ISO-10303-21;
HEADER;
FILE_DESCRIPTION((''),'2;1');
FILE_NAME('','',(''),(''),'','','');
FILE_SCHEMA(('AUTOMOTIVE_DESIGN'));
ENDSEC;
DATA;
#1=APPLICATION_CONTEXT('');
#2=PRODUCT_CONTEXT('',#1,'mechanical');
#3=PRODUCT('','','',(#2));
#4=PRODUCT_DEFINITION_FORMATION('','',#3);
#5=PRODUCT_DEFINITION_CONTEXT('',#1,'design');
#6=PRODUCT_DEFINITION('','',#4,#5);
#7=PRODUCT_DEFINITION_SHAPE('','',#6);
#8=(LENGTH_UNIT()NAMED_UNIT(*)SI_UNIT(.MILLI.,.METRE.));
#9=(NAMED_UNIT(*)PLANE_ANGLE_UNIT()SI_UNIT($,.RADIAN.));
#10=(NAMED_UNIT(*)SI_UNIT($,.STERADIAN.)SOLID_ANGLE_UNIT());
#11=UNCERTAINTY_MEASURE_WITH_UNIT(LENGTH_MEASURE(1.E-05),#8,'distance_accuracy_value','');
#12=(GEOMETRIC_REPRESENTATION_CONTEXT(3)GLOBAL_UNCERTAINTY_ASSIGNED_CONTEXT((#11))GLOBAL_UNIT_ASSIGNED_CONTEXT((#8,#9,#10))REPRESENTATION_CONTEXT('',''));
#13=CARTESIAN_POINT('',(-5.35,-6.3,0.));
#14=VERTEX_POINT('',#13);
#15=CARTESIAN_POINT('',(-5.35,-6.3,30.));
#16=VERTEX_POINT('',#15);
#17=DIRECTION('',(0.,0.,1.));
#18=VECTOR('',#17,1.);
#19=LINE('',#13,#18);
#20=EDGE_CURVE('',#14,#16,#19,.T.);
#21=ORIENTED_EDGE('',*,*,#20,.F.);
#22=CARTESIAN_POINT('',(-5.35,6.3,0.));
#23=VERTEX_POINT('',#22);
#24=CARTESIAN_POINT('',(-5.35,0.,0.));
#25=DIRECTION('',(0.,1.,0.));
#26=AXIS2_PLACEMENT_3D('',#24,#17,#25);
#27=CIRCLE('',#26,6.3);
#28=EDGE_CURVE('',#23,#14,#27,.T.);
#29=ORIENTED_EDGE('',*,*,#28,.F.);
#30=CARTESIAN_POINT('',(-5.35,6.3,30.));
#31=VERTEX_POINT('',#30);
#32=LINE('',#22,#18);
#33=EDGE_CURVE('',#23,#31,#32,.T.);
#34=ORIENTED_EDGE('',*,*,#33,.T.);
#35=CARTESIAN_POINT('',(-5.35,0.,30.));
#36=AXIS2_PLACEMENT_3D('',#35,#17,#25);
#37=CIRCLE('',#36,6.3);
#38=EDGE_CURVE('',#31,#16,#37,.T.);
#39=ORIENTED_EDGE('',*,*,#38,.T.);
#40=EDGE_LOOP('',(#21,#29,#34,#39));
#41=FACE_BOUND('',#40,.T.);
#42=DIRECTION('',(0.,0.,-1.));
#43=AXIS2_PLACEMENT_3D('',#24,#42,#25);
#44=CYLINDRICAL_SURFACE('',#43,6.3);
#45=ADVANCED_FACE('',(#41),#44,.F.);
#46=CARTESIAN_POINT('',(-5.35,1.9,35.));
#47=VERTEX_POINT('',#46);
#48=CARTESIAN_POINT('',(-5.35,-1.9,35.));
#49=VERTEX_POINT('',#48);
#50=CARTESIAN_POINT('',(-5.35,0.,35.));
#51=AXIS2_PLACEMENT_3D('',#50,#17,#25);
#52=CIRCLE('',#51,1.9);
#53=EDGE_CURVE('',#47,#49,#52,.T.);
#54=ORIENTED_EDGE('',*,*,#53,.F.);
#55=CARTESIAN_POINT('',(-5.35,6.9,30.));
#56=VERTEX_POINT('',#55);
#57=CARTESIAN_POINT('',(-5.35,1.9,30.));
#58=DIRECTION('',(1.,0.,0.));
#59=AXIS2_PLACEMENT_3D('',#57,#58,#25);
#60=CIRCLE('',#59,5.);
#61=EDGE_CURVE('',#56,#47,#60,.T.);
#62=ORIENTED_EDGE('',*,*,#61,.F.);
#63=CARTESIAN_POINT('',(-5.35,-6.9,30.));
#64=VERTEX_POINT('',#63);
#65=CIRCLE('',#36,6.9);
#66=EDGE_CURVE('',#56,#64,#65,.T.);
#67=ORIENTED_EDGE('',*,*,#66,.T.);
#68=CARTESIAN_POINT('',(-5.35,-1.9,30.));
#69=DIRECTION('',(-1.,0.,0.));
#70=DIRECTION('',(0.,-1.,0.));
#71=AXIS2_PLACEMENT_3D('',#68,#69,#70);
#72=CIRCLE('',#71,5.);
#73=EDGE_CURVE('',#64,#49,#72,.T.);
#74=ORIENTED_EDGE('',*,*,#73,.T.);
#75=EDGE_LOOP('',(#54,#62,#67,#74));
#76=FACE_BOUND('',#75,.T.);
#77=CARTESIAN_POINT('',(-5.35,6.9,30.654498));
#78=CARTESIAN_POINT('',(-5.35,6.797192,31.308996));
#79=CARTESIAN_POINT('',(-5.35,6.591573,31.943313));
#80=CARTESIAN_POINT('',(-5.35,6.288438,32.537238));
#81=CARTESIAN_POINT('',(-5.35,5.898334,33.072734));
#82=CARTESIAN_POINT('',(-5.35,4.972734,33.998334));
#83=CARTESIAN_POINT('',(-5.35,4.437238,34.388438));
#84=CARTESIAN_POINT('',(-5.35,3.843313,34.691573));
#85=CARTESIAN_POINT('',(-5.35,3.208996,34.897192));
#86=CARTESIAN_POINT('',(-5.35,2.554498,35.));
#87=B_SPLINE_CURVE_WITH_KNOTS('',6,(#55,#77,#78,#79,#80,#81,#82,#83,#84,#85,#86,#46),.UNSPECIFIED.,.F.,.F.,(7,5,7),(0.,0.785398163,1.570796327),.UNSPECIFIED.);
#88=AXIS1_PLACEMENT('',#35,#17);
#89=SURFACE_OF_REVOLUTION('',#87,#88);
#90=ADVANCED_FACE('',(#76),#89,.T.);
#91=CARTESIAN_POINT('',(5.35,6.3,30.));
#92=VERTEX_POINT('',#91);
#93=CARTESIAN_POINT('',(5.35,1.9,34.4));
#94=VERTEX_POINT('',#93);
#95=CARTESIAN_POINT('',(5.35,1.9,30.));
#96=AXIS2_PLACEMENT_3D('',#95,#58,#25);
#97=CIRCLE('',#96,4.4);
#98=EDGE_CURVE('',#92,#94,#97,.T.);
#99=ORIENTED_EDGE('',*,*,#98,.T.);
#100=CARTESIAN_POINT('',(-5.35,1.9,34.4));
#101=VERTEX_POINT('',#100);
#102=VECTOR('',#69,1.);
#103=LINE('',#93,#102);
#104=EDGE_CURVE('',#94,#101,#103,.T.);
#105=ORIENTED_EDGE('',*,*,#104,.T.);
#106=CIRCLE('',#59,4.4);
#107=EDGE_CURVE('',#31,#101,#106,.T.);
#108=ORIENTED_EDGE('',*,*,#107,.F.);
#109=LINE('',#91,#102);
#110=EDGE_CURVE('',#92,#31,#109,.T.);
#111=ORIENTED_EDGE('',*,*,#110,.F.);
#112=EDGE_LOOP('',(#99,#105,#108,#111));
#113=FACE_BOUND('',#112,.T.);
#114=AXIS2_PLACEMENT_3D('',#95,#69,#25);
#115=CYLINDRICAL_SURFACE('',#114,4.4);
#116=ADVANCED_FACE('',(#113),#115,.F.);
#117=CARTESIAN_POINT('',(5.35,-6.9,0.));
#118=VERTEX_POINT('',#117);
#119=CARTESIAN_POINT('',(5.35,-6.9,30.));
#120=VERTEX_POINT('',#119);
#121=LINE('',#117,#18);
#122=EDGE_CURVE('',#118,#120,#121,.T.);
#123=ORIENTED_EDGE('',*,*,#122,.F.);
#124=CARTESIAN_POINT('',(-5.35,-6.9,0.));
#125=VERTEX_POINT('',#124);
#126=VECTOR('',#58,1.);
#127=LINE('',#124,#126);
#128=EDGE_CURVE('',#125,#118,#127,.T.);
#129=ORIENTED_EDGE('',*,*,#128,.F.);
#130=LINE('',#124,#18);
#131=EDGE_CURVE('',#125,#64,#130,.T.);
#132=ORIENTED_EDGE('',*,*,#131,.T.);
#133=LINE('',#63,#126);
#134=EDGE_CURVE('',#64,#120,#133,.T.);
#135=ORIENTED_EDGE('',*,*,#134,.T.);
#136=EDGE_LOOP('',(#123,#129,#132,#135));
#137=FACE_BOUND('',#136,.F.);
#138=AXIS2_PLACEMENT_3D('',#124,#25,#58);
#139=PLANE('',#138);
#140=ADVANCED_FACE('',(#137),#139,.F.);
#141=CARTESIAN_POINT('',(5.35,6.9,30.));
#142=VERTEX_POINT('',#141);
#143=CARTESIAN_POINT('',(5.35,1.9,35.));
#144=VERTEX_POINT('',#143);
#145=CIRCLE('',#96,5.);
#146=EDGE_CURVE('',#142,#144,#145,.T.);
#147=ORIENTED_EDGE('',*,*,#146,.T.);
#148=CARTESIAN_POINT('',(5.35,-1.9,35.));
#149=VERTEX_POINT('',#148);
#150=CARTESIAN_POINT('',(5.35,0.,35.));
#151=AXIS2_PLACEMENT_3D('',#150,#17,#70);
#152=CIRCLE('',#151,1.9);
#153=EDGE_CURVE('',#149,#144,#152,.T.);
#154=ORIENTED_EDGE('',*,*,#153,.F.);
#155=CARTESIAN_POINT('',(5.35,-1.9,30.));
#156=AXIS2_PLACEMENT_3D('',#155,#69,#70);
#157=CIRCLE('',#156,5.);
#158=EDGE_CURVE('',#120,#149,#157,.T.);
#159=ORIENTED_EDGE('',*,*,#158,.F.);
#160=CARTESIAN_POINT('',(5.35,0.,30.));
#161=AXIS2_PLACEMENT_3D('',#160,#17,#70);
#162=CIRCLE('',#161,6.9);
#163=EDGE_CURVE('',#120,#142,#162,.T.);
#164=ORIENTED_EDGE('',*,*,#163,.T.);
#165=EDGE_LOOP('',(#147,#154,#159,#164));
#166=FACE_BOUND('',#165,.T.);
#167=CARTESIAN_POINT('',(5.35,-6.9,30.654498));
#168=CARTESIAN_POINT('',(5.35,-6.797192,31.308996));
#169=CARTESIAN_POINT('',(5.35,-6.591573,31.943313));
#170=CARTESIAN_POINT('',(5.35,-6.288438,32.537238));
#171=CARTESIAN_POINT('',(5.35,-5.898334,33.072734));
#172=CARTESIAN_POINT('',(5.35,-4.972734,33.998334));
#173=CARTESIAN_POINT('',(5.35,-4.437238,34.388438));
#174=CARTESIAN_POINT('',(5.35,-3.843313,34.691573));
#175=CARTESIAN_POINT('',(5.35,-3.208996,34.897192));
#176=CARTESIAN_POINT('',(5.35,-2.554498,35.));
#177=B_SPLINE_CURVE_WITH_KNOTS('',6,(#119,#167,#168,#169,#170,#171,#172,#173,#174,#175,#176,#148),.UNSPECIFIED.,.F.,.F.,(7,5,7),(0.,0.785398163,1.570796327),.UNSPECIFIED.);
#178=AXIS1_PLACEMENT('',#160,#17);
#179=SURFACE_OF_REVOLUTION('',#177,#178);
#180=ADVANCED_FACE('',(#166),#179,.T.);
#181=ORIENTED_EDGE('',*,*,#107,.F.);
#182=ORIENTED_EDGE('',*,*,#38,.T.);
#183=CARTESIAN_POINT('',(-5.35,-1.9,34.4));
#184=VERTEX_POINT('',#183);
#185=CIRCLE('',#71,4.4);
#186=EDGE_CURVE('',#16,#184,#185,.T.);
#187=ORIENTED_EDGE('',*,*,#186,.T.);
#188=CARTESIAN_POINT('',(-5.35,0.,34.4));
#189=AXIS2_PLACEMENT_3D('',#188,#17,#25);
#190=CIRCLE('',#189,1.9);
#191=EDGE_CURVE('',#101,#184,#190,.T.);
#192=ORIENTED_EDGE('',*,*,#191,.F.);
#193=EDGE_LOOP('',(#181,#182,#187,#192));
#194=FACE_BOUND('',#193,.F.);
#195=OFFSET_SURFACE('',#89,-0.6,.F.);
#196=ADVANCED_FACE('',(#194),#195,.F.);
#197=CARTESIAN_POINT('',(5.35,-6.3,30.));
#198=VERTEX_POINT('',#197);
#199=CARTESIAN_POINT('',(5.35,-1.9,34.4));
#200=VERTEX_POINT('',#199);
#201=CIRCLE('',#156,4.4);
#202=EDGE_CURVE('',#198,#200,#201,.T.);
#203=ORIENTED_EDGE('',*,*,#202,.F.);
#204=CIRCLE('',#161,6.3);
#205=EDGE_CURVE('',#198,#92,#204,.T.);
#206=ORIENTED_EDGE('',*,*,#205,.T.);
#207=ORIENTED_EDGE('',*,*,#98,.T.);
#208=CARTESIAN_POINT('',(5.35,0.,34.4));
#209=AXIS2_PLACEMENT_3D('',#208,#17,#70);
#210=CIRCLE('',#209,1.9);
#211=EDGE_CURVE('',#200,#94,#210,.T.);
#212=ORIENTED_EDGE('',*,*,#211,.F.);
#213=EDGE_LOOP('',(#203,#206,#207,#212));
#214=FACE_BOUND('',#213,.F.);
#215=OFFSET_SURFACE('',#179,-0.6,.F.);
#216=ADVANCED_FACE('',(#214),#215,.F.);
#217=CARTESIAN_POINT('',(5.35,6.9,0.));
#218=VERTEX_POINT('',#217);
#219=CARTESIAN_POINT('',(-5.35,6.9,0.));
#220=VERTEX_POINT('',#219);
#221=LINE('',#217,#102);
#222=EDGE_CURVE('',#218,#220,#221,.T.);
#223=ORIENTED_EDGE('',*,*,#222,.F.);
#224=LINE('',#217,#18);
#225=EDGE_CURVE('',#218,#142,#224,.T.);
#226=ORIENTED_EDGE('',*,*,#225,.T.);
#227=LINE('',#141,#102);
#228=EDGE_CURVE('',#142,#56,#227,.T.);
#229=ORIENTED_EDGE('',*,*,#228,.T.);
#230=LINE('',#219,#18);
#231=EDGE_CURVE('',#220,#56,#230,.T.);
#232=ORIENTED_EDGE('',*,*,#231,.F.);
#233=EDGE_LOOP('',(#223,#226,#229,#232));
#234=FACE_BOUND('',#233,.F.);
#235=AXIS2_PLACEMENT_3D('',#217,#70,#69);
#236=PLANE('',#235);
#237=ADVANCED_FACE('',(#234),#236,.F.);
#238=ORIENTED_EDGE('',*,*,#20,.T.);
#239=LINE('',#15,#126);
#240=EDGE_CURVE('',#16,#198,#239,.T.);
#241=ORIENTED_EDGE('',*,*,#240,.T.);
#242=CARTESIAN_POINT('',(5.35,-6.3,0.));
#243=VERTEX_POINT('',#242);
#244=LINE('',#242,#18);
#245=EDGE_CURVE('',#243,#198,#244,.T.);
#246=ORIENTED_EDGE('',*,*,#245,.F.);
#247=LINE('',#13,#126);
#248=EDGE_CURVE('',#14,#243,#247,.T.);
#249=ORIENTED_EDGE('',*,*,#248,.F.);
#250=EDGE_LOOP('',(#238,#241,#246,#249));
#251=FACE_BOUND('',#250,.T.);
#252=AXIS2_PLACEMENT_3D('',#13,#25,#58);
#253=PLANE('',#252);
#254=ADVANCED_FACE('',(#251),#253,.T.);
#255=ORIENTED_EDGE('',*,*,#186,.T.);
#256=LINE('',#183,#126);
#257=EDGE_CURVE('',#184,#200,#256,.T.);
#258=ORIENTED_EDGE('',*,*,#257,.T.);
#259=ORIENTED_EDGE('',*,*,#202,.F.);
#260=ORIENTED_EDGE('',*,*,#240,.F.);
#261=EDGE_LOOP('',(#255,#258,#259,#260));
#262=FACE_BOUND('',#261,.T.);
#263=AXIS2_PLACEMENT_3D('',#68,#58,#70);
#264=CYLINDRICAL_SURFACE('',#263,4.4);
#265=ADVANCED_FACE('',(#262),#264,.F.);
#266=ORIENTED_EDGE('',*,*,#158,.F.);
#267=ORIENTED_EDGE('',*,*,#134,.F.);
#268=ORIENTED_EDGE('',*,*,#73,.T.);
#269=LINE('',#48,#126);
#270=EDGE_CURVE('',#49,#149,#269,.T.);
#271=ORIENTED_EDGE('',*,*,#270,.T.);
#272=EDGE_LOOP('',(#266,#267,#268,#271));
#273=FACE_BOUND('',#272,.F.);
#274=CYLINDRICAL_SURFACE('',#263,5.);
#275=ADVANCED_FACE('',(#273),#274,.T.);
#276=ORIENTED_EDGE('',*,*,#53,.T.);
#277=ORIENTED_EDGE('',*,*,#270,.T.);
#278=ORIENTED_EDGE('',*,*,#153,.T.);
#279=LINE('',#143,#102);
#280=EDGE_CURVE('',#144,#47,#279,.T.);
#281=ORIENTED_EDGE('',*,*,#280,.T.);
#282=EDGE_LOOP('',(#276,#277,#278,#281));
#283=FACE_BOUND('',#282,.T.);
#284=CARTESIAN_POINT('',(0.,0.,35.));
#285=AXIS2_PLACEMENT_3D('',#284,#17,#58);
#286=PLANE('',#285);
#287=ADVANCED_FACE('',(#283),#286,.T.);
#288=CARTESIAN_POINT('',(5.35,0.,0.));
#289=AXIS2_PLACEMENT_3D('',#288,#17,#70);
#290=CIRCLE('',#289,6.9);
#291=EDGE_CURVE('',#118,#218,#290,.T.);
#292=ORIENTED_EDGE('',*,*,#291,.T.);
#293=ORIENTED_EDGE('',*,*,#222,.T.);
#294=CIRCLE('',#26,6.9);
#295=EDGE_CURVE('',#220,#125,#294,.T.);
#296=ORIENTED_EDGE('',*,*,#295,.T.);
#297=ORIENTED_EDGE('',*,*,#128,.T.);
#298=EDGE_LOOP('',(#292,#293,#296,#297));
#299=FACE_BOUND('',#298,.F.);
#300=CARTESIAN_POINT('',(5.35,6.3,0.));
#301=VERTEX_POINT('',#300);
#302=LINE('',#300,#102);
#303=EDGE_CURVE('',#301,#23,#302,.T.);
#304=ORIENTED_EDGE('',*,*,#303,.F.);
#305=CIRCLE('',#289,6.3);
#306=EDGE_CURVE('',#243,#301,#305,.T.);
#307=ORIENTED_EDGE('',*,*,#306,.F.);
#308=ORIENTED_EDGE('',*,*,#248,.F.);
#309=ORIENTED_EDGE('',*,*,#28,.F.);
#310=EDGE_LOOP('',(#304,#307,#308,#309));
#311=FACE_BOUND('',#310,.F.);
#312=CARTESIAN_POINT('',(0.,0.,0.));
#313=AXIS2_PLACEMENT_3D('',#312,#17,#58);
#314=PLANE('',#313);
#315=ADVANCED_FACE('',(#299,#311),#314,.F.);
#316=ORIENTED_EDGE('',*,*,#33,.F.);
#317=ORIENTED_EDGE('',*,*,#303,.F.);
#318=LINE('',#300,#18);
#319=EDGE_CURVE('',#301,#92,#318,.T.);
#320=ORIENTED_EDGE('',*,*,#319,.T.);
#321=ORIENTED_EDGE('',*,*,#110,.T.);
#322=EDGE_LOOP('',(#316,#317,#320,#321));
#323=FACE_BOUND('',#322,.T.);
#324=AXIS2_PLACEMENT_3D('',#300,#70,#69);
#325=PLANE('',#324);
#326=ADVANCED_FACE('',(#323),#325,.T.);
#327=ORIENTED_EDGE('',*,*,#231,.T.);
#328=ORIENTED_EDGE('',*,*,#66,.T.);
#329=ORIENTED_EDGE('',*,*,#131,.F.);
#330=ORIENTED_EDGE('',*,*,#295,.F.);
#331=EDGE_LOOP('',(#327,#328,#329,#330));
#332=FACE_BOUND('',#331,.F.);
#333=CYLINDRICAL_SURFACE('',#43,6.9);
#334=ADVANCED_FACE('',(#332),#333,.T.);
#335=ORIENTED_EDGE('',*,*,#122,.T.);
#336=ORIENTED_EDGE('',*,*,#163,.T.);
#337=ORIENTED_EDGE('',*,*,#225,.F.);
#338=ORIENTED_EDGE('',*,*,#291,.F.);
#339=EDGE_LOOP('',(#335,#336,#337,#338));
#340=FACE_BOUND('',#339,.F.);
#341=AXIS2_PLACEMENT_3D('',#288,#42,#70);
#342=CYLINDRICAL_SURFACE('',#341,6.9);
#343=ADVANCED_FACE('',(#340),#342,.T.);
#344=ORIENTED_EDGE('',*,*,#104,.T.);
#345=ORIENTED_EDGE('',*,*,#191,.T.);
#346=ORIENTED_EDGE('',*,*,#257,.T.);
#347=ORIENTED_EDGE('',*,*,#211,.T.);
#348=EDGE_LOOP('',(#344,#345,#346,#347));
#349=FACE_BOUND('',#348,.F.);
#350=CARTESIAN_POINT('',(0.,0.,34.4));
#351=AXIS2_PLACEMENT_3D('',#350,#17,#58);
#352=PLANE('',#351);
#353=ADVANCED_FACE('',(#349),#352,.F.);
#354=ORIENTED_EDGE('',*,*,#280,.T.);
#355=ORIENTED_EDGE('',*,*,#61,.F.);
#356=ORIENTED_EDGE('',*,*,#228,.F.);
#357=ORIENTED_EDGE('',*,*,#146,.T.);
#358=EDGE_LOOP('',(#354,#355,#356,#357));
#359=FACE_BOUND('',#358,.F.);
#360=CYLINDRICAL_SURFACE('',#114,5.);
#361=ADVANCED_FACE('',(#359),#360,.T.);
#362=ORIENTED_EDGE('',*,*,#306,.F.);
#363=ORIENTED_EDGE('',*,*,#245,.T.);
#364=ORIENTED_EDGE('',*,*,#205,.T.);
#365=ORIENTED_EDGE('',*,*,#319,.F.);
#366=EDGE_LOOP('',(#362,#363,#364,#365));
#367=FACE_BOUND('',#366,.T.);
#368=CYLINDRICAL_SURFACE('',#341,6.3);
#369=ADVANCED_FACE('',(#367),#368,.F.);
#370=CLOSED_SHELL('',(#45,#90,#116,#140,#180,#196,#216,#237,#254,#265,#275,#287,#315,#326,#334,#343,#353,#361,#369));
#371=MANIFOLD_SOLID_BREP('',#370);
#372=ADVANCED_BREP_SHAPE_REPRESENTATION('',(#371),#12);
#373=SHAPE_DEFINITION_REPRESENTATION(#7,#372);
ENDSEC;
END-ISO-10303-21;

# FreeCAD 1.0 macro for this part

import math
import FreeCAD as App
import Part
import Sketcher
from FreeCAD import Vector


def edges_at(feature, points):
    """Names of the edges that pass closest to the given points."""
    edges = feature.Shape.Edges
    near = lambda p: min(range(len(edges)), key=lambda i: edges[i].distToShape(Part.Vertex(*p))[0])
    return sorted({f"Edge{near(p) + 1}" for p in points})


def faces_at(feature, points):
    """Names of the faces that lie closest to the given points."""
    faces = feature.Shape.Faces
    near = lambda p: min(range(len(faces)), key=lambda i: faces[i].distToShape(Part.Vertex(*p))[0])
    return sorted({f"Face{near(p) + 1}" for p in points})

doc = App.newDocument("Part")
body = doc.addObject("PartDesign::Body", "Body")

# Sketch on XY plane
sketch1 = doc.addObject("Sketcher::SketchObject", "Sketch")
body.addObject(sketch1)
sketch1.AttachmentSupport = (doc.XY_Plane, [""])
sketch1.MapMode = "FlatFace"
sketch1.addGeometry(Part.LineSegment(Vector(5, 7, 0), Vector(-5, 7, 0)), False)
sketch1.addGeometry(Part.ArcOfCircle(Part.Circle(Vector(-5, 0, 0), Vector(0, 0, 1), 7), math.radians(90), math.radians(270)), False)
sketch1.addGeometry(Part.LineSegment(Vector(-5, -7, 0), Vector(5, -7, 0)), False)
sketch1.addGeometry(Part.ArcOfCircle(Part.Circle(Vector(5, 0, 0), Vector(0, 0, 1), 7), math.radians(-90), math.radians(90)), False)
sketch1.addConstraint(Sketcher.Constraint("Tangent", 0, 2, 1, 1))
sketch1.addConstraint(Sketcher.Constraint("Tangent", 1, 2, 2, 1))
sketch1.addConstraint(Sketcher.Constraint("Tangent", 2, 2, 3, 1))
sketch1.addConstraint(Sketcher.Constraint("Tangent", 3, 2, 0, 1))
sketch1.addConstraint(Sketcher.Constraint("Horizontal", 0))
sketch1.addConstraint(Sketcher.Constraint("Horizontal", 2))
sketch1.addConstraint(Sketcher.Constraint("Symmetric", 1, 3, 3, 3, -1, 1))
sketch1.addConstraint(Sketcher.Constraint("Radius", 1, 6.9))
sketch1.addConstraint(Sketcher.Constraint("DistanceX", 0, 2, 0, 1, 10.7))
pad1 = doc.addObject("PartDesign::Pad", "Pad")
body.addObject(pad1)
pad1.Profile = sketch1
pad1.Length = 35
doc.recompute()

fillet = doc.addObject("PartDesign::Fillet", "Fillet")
body.addObject(fillet)
fillet.Base = (pad1, edges_at(pad1, [(0, -6.9, 35)]))
fillet.Radius = 5
doc.recompute()

thickness = doc.addObject("PartDesign::Thickness", "Thickness")
body.addObject(thickness)
thickness.Base = (fillet, faces_at(fillet, [(0, 0, 0)]))
thickness.Value = 0.6
thickness.Reversed = True
thickness.Join = "Arc"

doc.recompute()
